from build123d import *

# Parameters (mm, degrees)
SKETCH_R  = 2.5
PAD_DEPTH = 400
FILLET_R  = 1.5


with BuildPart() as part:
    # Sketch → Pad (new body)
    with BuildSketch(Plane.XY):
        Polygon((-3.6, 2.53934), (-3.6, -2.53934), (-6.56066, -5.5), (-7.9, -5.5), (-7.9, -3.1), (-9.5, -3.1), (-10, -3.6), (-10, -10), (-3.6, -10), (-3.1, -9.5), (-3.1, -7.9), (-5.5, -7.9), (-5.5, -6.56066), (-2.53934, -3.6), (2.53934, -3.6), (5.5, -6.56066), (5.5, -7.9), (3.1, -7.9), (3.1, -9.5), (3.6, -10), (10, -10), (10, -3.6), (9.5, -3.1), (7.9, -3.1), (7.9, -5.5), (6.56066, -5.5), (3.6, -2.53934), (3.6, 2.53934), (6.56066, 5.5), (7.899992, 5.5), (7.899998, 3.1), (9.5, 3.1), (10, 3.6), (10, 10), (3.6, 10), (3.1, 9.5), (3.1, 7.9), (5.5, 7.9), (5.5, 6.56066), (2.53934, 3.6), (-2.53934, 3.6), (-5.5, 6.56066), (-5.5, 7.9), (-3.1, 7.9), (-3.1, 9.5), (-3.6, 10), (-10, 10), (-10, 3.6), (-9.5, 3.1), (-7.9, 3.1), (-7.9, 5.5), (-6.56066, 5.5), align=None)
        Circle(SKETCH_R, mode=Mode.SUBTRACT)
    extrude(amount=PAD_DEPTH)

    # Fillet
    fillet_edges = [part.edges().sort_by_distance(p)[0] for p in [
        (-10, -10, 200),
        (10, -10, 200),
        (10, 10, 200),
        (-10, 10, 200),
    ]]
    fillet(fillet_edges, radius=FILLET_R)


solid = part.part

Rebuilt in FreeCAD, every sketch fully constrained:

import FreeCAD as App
import Part
import Sketcher
from FreeCAD import Vector


def edges_at(feature, points):
    """Names of the edges that pass closest to the given points."""
    edges = feature.Shape.Edges
    near = lambda p: min(range(len(edges)), key=lambda i: edges[i].distToShape(Part.Vertex(*p))[0])
    return sorted({f"Edge{near(p) + 1}" for p in points})


def add_polygon(sketch, points):
    """Adds a closed chain of lines whose ends are joined by coincident constraints."""
    first, n = sketch.GeometryCount, len(points)
    for a, b in zip(points, points[1:] + points[:1]):
        sketch.addGeometry(Part.LineSegment(App.Vector(*a, 0), App.Vector(*b, 0)), False)
    for i in range(n):
        sketch.addConstraint(Sketcher.Constraint("Coincident", first + i, 2, first + (i + 1) % n, 1))

doc = App.newDocument("Part")
body = doc.addObject("PartDesign::Body", "Body")

sketch1 = body.newObject("Sketcher::SketchObject", "Sketch")
sketch1.AttachmentSupport = (doc.getObject("XY_Plane"), [""])
sketch1.MapMode = "FlatFace"
add_polygon(sketch1, [(-3.6, 2.5), (-3.6, -2.5), (-6.6, -5.5), (-7.9, -5.5), (-7.9, -3.1), (-9.5, -3.1), (-10, -3.6), (-10, -10), (-3.6, -10), (-3.1, -9.5), (-3.1, -7.9), (-5.5, -7.9), (-5.5, -6.6), (-2.5, -3.6), (2.5, -3.6), (5.5, -6.6), (5.5, -7.9), (3.1, -7.9), (3.1, -9.5), (3.6, -10), (10, -10), (10, -3.6), (9.5, -3.1), (7.9, -3.1), (7.9, -5.5), (6.6, -5.5), (3.6, -2.5), (3.6, 2.5), (6.6, 5.5), (7.9, 5.5), (7.9, 3.1), (9.5, 3.1), (10, 3.6), (10, 10), (3.6, 10), (3.1, 9.5), (3.1, 7.9), (5.5, 7.9), (5.5, 6.6), (2.5, 3.6), (-2.5, 3.6), (-5.5, 6.6), (-5.5, 7.9), (-3.1, 7.9), (-3.1, 9.5), (-3.6, 10), (-10, 10), (-10, 3.6), (-9.5, 3.1), (-7.9, 3.1), (-7.9, 5.5), (-6.6, 5.5)])
sketch1.addGeometry(Part.Circle(Vector(0, 0, 0), Vector(0, 0, 1), 2.5), False)
sketch1.addConstraint([
    Sketcher.Constraint("Vertical", 0),
    Sketcher.Constraint("Horizontal", 2),
    Sketcher.Constraint("Vertical", 3),
    Sketcher.Constraint("Horizontal", 4),
    Sketcher.Constraint("Vertical", 6),
    Sketcher.Constraint("Horizontal", 7),
    Sketcher.Constraint("Vertical", 9),
    Sketcher.Constraint("Horizontal", 10),
    Sketcher.Constraint("Vertical", 11),
    Sketcher.Constraint("Horizontal", 13),
    Sketcher.Constraint("Vertical", 15),
    Sketcher.Constraint("Horizontal", 16),
    Sketcher.Constraint("Vertical", 17),
    Sketcher.Constraint("Horizontal", 19),
    Sketcher.Constraint("Vertical", 20),
    Sketcher.Constraint("Horizontal", 22),
    Sketcher.Constraint("Vertical", 23),
    Sketcher.Constraint("Horizontal", 24),
    Sketcher.Constraint("Vertical", 26),
    Sketcher.Constraint("Horizontal", 28),
    Sketcher.Constraint("Horizontal", 30),
    Sketcher.Constraint("Vertical", 32),
    Sketcher.Constraint("Horizontal", 33),
    Sketcher.Constraint("Vertical", 35),
    Sketcher.Constraint("Horizontal", 36),
    Sketcher.Constraint("Vertical", 37),
    Sketcher.Constraint("Horizontal", 39),
    Sketcher.Constraint("Vertical", 41),
    Sketcher.Constraint("Horizontal", 42),
    Sketcher.Constraint("Vertical", 43),
    Sketcher.Constraint("Horizontal", 45),
    Sketcher.Constraint("Vertical", 46),
    Sketcher.Constraint("Horizontal", 48),
    Sketcher.Constraint("Vertical", 49),
    Sketcher.Constraint("Horizontal", 50),
    Sketcher.Constraint("Coincident", 52, 3, -1, 1),
    Sketcher.Constraint("Symmetric", 0, 2, 26, 2, -1, 1),
    Sketcher.Constraint("Symmetric", 1, 2, 27, 2, -1, 1),
    Sketcher.Constraint("Symmetric", 3, 2, 29, 2, -1, 1),
    Sketcher.Constraint("Symmetric", 5, 2, 31, 2, -1, 1),
    Sketcher.Constraint("Symmetric", 7, 2, 33, 2, -1, 1),
    Sketcher.Constraint("Symmetric", 8, 2, 34, 2, -1, 1),
    Sketcher.Constraint("Symmetric", 10, 2, 36, 2, -1, 1),
    Sketcher.Constraint("Symmetric", 12, 2, 38, 2, -1, 1),
    Sketcher.Constraint("Symmetric", 14, 2, 40, 2, -1, 1),
    Sketcher.Constraint("Symmetric", 16, 2, 42, 2, -1, 1),
    Sketcher.Constraint("Symmetric", 18, 2, 44, 2, -1, 1),
    Sketcher.Constraint("Symmetric", 20, 2, 46, 2, -1, 1),
    Sketcher.Constraint("Symmetric", 21, 2, 47, 2, -1, 1),
    Sketcher.Constraint("Symmetric", 23, 2, 49, 2, -1, 1),
    Sketcher.Constraint("Symmetric", 11, 2, 14, 2, -2),
    Sketcher.Constraint("Symmetric", 9, 2, 16, 2, -2),
    Sketcher.Constraint("Symmetric", 7, 2, 18, 2, -2),
    Sketcher.Constraint("Symmetric", 5, 2, 20, 2, -2),
    Sketcher.Constraint("Symmetric", 4, 2, 21, 2, -2),
    Sketcher.Constraint("Symmetric", 2, 2, 23, 2, -2),
    Sketcher.Constraint("Parallel", 1, 5),
    Sketcher.Constraint("Parallel", 5, 8),
    Sketcher.Constraint("Parallel", 8, 12),
    Sketcher.Constraint("Perpendicular", 12, 14),
    Sketcher.Constraint("Parallel", 14, 18),
    Sketcher.Constraint("Parallel", 18, 21),
    Sketcher.Constraint("Parallel", 21, 25),
    Sketcher.Constraint("Parallel", 27, 31),
    Sketcher.Constraint("Parallel", 34, 38),
    Sketcher.Constraint("Perpendicular", 38, 40),
    Sketcher.Constraint("Parallel", 40, 44),
    Sketcher.Constraint("Parallel", 47, 51),
    Sketcher.Constraint("Horizontal", 5, 2, 12, 2),
    Sketcher.Constraint("Horizontal", 0, 2, 25, 2),
    Sketcher.Constraint("Horizontal", 26, 2, 51, 2),
    Sketcher.Constraint("Vertical", 0, 2, 7, 2),
    Sketcher.Constraint("Equal", 39, 0),
    Sketcher.Constraint("Equal", 42, 3),
    Sketcher.Constraint("Equal", 45, 6),
    Sketcher.Constraint("Equal", 48, 9),
    Sketcher.Constraint("Equal", 50, 11),
    Sketcher.Constraint("Equal", 5, 8),
    Sketcher.Constraint("Diameter", 52, 5.0),
    Sketcher.Constraint("DistanceX", 4, 2, 4, 1, 1.6),
    Sketcher.Constraint("DistanceX", 7, 1, 7, 2, 6.4),
    Sketcher.Constraint("DistanceX", 10, 2, 10, 1, 2.4),
    Sketcher.Constraint("DistanceX", 5, 2, -1, 1, 10.0),
    Sketcher.Constraint("DistanceY", 1, 2, -1, 1, 5.5),
    Sketcher.Constraint("DistanceX", 2, 2, 2, 1, 1.33934),
    Sketcher.Constraint("DistanceX", 28, 1, 28, 2, 1.339332),
])
pad1 = body.newObject("PartDesign::Pad", "Pad")
pad1.Profile = sketch1
pad1.Length = 400
doc.recompute()

fillet = body.newObject("PartDesign::Fillet", "Fillet")
fillet.Base = (pad1, edges_at(pad1, [
    (-10, -10, 200),
    (10, -10, 200),
    (10, 10, 200),
    (-10, 10, 200),
]))
fillet.Radius = 1.5

doc.recompute()
